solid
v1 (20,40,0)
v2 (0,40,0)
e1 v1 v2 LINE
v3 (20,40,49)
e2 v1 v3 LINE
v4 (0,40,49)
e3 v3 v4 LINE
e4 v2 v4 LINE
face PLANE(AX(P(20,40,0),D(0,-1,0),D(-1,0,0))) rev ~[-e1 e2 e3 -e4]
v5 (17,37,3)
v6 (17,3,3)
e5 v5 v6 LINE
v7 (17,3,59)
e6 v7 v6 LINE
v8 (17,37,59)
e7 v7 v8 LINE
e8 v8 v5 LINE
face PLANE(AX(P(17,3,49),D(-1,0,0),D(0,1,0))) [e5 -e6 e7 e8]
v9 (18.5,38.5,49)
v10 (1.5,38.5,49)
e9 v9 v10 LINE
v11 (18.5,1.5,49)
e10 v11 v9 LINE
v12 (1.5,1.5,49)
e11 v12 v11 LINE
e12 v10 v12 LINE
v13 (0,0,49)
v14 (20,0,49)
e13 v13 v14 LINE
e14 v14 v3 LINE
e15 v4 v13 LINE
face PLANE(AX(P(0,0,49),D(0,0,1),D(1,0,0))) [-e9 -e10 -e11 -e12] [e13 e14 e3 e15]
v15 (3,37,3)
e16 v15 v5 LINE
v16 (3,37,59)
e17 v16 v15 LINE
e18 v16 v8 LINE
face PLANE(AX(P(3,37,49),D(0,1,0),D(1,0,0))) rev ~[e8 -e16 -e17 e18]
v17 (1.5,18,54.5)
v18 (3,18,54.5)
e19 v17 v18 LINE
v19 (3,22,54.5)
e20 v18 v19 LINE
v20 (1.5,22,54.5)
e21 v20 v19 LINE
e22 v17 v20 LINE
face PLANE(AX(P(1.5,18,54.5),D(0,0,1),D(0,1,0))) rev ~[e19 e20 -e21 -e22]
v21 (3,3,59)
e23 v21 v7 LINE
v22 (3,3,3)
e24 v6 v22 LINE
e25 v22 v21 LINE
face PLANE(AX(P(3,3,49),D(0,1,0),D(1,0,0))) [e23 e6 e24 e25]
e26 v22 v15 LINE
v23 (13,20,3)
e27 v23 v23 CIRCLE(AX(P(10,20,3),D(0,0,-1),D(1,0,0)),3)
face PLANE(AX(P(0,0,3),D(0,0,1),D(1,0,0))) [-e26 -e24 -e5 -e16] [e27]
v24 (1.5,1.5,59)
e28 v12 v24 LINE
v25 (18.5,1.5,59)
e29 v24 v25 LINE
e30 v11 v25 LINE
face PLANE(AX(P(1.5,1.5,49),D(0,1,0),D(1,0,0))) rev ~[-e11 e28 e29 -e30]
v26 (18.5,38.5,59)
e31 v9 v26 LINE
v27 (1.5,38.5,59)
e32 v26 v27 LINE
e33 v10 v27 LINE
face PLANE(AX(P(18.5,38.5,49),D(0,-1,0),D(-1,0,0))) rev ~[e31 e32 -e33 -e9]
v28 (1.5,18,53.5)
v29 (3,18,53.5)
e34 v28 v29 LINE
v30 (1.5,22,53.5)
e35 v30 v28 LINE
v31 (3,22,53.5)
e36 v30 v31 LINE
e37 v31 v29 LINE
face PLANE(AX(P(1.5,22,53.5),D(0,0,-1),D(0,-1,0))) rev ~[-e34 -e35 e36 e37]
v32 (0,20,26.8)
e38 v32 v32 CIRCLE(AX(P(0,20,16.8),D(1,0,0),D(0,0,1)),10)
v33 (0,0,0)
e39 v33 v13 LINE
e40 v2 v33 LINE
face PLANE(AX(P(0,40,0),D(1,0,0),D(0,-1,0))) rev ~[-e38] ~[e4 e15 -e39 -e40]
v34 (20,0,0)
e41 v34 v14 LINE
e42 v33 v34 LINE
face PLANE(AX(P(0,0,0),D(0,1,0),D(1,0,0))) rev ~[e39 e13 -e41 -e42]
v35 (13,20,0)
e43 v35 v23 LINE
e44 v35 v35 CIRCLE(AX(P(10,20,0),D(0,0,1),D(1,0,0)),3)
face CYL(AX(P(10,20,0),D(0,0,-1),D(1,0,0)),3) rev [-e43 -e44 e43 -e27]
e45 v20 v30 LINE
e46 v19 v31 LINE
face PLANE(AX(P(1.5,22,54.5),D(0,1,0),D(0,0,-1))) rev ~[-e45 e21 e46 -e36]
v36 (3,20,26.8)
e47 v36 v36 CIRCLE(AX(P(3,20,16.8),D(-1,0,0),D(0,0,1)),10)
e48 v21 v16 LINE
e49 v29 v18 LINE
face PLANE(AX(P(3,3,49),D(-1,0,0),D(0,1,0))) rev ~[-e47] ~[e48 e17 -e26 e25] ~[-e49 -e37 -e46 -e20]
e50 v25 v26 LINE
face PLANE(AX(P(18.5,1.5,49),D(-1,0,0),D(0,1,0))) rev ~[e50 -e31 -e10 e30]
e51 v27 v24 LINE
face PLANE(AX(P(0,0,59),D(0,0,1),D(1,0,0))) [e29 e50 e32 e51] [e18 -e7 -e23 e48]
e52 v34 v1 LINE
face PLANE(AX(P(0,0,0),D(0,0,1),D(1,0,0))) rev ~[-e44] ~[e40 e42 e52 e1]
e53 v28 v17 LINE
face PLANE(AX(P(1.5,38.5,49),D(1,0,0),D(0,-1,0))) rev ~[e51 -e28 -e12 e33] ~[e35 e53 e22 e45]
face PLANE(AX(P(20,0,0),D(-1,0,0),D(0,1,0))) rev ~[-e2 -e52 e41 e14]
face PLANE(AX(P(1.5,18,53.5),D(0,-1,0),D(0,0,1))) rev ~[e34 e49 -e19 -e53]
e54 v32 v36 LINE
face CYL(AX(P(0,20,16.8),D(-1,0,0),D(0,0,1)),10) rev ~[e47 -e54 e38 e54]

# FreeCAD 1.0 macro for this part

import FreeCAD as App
import Part
import Sketcher
from FreeCAD import Vector
Q = App.Units.Quantity

doc = App.newDocument("Part")
body = doc.addObject("PartDesign::Body", "Body")

sketch1 = body.newObject("Sketcher::SketchObject", "Sketch")
sketch1.AttachmentSupport = (doc.getObject("XY_Plane"), [""])
sketch1.MapMode = "FlatFace"
sketch1.addGeometry(Part.LineSegment(Vector(0, 40, 0), Vector(0, 0, 0)), False)
sketch1.addGeometry(Part.LineSegment(Vector(0, 0, 0), Vector(20, 0, 0)), False)
sketch1.addGeometry(Part.LineSegment(Vector(20, 0, 0), Vector(20, 40, 0)), False)
sketch1.addGeometry(Part.LineSegment(Vector(20, 40, 0), Vector(0, 40, 0)), False)
sketch1.addGeometry(Part.Circle(Vector(10, 20, 0), Vector(0, 0, 1), 3), False)
sketch1.addConstraint(Sketcher.Constraint("Coincident", 0, 2, 1, 1))
sketch1.addConstraint(Sketcher.Constraint("Coincident", 1, 2, 2, 1))
sketch1.addConstraint(Sketcher.Constraint("Coincident", 2, 2, 3, 1))
sketch1.addConstraint(Sketcher.Constraint("Coincident", 3, 2, 0, 1))
sketch1.addConstraint(Sketcher.Constraint("Vertical", 0))
sketch1.addConstraint(Sketcher.Constraint("Horizontal", 1))
sketch1.addConstraint(Sketcher.Constraint("Vertical", 2))
sketch1.addConstraint(Sketcher.Constraint("Horizontal", 3))
sketch1.addConstraint(Sketcher.Constraint("Coincident", 0, 2, -1, 1))
sketch1.addConstraint(Sketcher.Constraint("Diameter", 4, Q("6 mm")))
sketch1.addConstraint(Sketcher.Constraint("DistanceX", 1, 1, 1, 2, Q("20 mm")))
sketch1.addConstraint(Sketcher.Constraint("DistanceY", 0, 2, 0, 1, Q("40 mm")))
sketch1.addConstraint(Sketcher.Constraint("DistanceY", -1, 1, 4, 3, Q("20 mm")))
sketch1.addConstraint(Sketcher.Constraint("DistanceX", -1, 1, 4, 3, Q("10 mm")))
pad1 = body.newObject("PartDesign::Pad", "Pad")
pad1.Profile = sketch1
pad1.Length = 49

sketch2 = body.newObject("Sketcher::SketchObject", "Sketch001")
sketch2.AttachmentSupport = (doc.getObject("XY_Plane"), [""])
sketch2.MapMode = "FlatFace"
sketch2.AttachmentOffset = App.Placement(Vector(0, 0, 49), App.Rotation())
sketch2.addGeometry(Part.LineSegment(Vector(17, 37, 0), Vector(3, 37, 0)), False)
sketch2.addGeometry(Part.LineSegment(Vector(3, 37, 0), Vector(3, 3, 0)), False)
sketch2.addGeometry(Part.LineSegment(Vector(3, 3, 0), Vector(17, 3, 0)), False)
sketch2.addGeometry(Part.LineSegment(Vector(17, 3, 0), Vector(17, 37, 0)), False)
sketch2.addConstraint(Sketcher.Constraint("Coincident", 0, 2, 1, 1))
sketch2.addConstraint(Sketcher.Constraint("Coincident", 1, 2, 2, 1))
sketch2.addConstraint(Sketcher.Constraint("Coincident", 2, 2, 3, 1))
sketch2.addConstraint(Sketcher.Constraint("Coincident", 3, 2, 0, 1))
sketch2.addConstraint(Sketcher.Constraint("Horizontal", 0))
sketch2.addConstraint(Sketcher.Constraint("Vertical", 1))
sketch2.addConstraint(Sketcher.Constraint("Horizontal", 2))
sketch2.addConstraint(Sketcher.Constraint("Vertical", 3))
sketch2.addConstraint(Sketcher.Constraint("DistanceX", 0, 2, 0, 1, Q("14 mm")))
sketch2.addConstraint(Sketcher.Constraint("DistanceY", 1, 2, 1, 1, Q("34 mm")))
sketch2.addConstraint(Sketcher.Constraint("DistanceX", -1, 1, 0, 2, Q("3 mm")))
sketch2.addConstraint(Sketcher.Constraint("DistanceY", -1, 1, 1, 2, Q("3 mm")))
pocket1 = body.newObject("PartDesign::Pocket", "Pocket")
pocket1.Profile = sketch2
pocket1.Length = 46

sketch3 = body.newObject("Sketcher::SketchObject", "Sketch002")
sketch3.AttachmentSupport = (doc.getObject("XY_Plane"), [""])
sketch3.MapMode = "FlatFace"
sketch3.AttachmentOffset = App.Placement(Vector(0, 0, 49), App.Rotation())
sketch3.addGeometry(Part.LineSegment(Vector(2, 38, 0), Vector(2, 2, 0)), False)
sketch3.addGeometry(Part.LineSegment(Vector(2, 2, 0), Vector(18, 2, 0)), False)
sketch3.addGeometry(Part.LineSegment(Vector(18, 2, 0), Vector(18, 38, 0)), False)
sketch3.addGeometry(Part.LineSegment(Vector(18, 38, 0), Vector(2, 38, 0)), False)
sketch3.addGeometry(Part.LineSegment(Vector(17, 3, 0), Vector(3, 3, 0)), False)
sketch3.addGeometry(Part.LineSegment(Vector(3, 3, 0), Vector(3, 37, 0)), False)
sketch3.addGeometry(Part.LineSegment(Vector(3, 37, 0), Vector(17, 37, 0)), False)
sketch3.addGeometry(Part.LineSegment(Vector(17, 37, 0), Vector(17, 3, 0)), False)
sketch3.addConstraint(Sketcher.Constraint("Coincident", 0, 2, 1, 1))
sketch3.addConstraint(Sketcher.Constraint("Coincident", 1, 2, 2, 1))
sketch3.addConstraint(Sketcher.Constraint("Coincident", 2, 2, 3, 1))
sketch3.addConstraint(Sketcher.Constraint("Coincident", 3, 2, 0, 1))
sketch3.addConstraint(Sketcher.Constraint("Coincident", 4, 2, 5, 1))
sketch3.addConstraint(Sketcher.Constraint("Coincident", 5, 2, 6, 1))
sketch3.addConstraint(Sketcher.Constraint("Coincident", 6, 2, 7, 1))
sketch3.addConstraint(Sketcher.Constraint("Coincident", 7, 2, 4, 1))
sketch3.addConstraint(Sketcher.Constraint("Vertical", 0))
sketch3.addConstraint(Sketcher.Constraint("Horizontal", 1))
sketch3.addConstraint(Sketcher.Constraint("Vertical", 2))
sketch3.addConstraint(Sketcher.Constraint("Horizontal", 3))
sketch3.addConstraint(Sketcher.Constraint("Horizontal", 4))
sketch3.addConstraint(Sketcher.Constraint("Vertical", 5))
sketch3.addConstraint(Sketcher.Constraint("Horizontal", 6))
sketch3.addConstraint(Sketcher.Constraint("Vertical", 7))
sketch3.addConstraint(Sketcher.Constraint("DistanceX", 1, 1, 1, 2, Q("17 mm")))
sketch3.addConstraint(Sketcher.Constraint("DistanceX", 4, 2, 4, 1, Q("14 mm")))
sketch3.addConstraint(Sketcher.Constraint("DistanceY", 0, 2, 0, 1, Q("37 mm")))
sketch3.addConstraint(Sketcher.Constraint("DistanceY", 5, 1, 5, 2, Q("34 mm")))
sketch3.addConstraint(Sketcher.Constraint("DistanceY", -1, 1, 5, 2, Q("37 mm")))
sketch3.addConstraint(Sketcher.Constraint("DistanceX", -1, 1, 6, 2, Q("17 mm")))
sketch3.addConstraint(Sketcher.Constraint("DistanceX", -1, 1, 0, 2, Q("1.5 mm")))
sketch3.addConstraint(Sketcher.Constraint("DistanceY", -1, 1, 0, 2, Q("1.5 mm")))
pad2 = body.newObject("PartDesign::Pad", "Pad001")
pad2.Profile = sketch3
pad2.Length = 10

sketch4 = body.newObject("Sketcher::SketchObject", "Sketch003")
sketch4.AttachmentSupport = (doc.getObject("YZ_Plane"), [""])
sketch4.MapMode = "FlatFace"
sketch4.addGeometry(Part.Circle(Vector(20, 17, 0), Vector(0, 0, 1), 10), False)
sketch4.addConstraint(Sketcher.Constraint("Diameter", 0, Q("20 mm")))
sketch4.addConstraint(Sketcher.Constraint("DistanceX", -1, 1, 0, 3, Q("20 mm")))
sketch4.addConstraint(Sketcher.Constraint("DistanceY", -1, 1, 0, 3, Q("16.8 mm")))
pocket2 = body.newObject("PartDesign::Pocket", "Pocket001")
pocket2.Profile = sketch4
pocket2.Length = 3
pocket2.Reversed = True

sketch5 = body.newObject("Sketcher::SketchObject", "Sketch004")
sketch5.AttachmentSupport = (doc.getObject("YZ_Plane"), [""])
sketch5.MapMode = "FlatFace"
sketch5.AttachmentOffset = App.Placement(Vector(0, 0, 1.5), App.Rotation())
sketch5.addGeometry(Part.LineSegment(Vector(18, 54.5, 0), Vector(22, 54.5, 0)), False)
sketch5.addGeometry(Part.LineSegment(Vector(22, 54.5, 0), Vector(22, 53.5, 0)), False)
sketch5.addGeometry(Part.LineSegment(Vector(22, 53.5, 0), Vector(18, 53.5, 0)), False)
sketch5.addGeometry(Part.LineSegment(Vector(18, 53.5, 0), Vector(18, 54.5, 0)), False)
sketch5.addConstraint(Sketcher.Constraint("Coincident", 0, 2, 1, 1))
sketch5.addConstraint(Sketcher.Constraint("Coincident", 1, 2, 2, 1))
sketch5.addConstraint(Sketcher.Constraint("Coincident", 2, 2, 3, 1))
sketch5.addConstraint(Sketcher.Constraint("Coincident", 3, 2, 0, 1))
sketch5.addConstraint(Sketcher.Constraint("Horizontal", 0))
sketch5.addConstraint(Sketcher.Constraint("Vertical", 1))
sketch5.addConstraint(Sketcher.Constraint("Horizontal", 2))
sketch5.addConstraint(Sketcher.Constraint("Vertical", 3))
sketch5.addConstraint(Sketcher.Constraint("DistanceX", 0, 1, 0, 2, Q("4 mm")))
sketch5.addConstraint(Sketcher.Constraint("DistanceY", 1, 2, 1, 1, Q("1 mm")))
sketch5.addConstraint(Sketcher.Constraint("DistanceX", -1, 1, 0, 2, Q("22 mm")))
sketch5.addConstraint(Sketcher.Constraint("DistanceY", -1, 1, 0, 2, Q("54.5 mm")))
pocket3 = body.newObject("PartDesign::Pocket", "Pocket002")
pocket3.Profile = sketch5
pocket3.Length = 1.5
pocket3.Reversed = True

doc.recompute()
